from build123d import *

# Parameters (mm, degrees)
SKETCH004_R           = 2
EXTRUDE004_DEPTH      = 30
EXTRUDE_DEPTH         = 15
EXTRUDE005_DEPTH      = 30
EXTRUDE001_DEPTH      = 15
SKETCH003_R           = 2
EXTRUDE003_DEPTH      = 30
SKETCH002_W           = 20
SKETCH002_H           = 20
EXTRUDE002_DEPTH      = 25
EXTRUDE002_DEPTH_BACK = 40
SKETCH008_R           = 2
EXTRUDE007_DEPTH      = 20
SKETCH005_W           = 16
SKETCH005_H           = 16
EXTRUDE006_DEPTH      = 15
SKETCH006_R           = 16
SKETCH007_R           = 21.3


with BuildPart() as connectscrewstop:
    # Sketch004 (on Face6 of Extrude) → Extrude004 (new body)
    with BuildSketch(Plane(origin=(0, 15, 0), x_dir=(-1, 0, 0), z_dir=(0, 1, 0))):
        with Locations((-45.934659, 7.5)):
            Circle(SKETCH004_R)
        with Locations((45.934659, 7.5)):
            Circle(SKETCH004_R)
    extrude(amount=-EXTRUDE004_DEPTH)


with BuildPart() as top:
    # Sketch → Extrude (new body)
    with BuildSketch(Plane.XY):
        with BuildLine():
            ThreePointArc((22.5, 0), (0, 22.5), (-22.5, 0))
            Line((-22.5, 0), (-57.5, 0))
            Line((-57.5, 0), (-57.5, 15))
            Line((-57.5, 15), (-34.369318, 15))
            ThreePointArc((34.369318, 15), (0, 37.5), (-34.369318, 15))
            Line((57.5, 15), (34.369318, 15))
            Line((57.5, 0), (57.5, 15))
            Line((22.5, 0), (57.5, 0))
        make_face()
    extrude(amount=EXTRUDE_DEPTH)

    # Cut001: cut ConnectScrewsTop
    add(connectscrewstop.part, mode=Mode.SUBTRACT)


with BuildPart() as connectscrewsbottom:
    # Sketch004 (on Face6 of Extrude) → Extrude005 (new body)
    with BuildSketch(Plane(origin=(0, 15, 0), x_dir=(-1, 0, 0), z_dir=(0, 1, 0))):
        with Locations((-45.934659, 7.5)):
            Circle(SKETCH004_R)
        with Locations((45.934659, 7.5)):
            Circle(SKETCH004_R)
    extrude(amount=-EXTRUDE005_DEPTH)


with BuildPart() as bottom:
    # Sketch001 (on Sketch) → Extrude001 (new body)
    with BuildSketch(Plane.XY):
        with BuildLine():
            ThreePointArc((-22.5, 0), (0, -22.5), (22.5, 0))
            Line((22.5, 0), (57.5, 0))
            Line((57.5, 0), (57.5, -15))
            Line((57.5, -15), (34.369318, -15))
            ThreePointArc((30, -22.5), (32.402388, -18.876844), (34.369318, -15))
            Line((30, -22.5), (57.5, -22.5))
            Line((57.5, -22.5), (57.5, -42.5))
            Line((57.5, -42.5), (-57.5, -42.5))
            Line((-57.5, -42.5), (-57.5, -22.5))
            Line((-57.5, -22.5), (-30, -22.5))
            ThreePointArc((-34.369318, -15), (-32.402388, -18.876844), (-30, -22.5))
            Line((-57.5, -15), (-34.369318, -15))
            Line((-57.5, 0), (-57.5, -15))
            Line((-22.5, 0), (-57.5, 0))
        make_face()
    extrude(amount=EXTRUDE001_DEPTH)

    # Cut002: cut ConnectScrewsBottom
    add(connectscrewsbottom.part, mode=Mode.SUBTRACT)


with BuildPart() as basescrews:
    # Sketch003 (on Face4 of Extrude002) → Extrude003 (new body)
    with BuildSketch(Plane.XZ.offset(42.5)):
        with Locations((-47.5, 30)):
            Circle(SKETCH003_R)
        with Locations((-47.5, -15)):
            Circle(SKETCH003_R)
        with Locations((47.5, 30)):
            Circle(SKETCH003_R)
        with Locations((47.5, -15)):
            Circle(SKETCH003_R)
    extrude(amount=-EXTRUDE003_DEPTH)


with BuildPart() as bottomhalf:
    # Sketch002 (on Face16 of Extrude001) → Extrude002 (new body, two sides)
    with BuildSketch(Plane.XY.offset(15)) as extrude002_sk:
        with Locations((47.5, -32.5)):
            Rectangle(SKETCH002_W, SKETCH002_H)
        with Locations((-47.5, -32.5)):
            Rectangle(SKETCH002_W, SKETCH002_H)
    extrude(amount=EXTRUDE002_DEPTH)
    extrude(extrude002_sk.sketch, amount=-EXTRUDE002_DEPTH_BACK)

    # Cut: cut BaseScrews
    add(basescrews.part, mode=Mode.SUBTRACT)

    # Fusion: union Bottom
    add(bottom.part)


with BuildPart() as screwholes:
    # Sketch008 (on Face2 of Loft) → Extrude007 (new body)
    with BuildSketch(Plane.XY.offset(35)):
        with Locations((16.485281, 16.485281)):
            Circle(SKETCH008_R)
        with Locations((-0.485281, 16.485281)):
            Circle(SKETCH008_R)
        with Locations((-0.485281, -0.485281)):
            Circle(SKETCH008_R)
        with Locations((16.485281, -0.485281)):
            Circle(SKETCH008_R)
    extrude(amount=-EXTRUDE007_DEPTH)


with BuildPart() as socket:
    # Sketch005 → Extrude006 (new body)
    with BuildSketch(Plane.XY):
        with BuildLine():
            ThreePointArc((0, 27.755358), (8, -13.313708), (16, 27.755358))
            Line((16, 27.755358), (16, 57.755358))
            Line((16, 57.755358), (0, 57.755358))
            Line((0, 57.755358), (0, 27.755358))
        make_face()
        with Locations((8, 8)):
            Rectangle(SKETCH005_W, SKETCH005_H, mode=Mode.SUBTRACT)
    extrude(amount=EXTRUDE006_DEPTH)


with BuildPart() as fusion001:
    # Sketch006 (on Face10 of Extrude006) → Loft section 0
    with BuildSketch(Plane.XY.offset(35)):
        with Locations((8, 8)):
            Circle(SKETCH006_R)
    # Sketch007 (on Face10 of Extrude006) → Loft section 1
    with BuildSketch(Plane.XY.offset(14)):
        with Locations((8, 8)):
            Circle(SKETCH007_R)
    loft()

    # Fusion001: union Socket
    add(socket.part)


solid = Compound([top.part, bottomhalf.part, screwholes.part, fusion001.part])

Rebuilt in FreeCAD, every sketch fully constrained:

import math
import FreeCAD as App
import Part
import Sketcher

V = App.Vector

doc = App.newDocument("Part")
params = doc.addObject("Spreadsheet::Sheet", "Params")
for row, (alias, value) in enumerate([
    ("sketch1_diameter", "4 mm"),
    ("pad1_length", "30 mm"),
    ("sketch2_radius", "22.5 mm"),
    ("sketch2_radius2", "37.5 mm"),
    ("sketch2_width", "35 mm"),
    ("sketch2_height", "15 mm"),
    ("pad2_length", "15 mm"),
    ("sketch3_diameter", "4 mm"),
    ("pad3_length", "30 mm"),
    ("sketch4_radius", "22.5 mm"),
    ("sketch4_width", "35 mm"),
    ("sketch4_height", "15 mm"),
    ("sketch4_height2", "20 mm"),
    ("sketch4_width2", "27.5 mm"),
    ("pad4_length", "15 mm"),
    ("sketch5_diameter", "4 mm"),
    ("pad5_length", "30 mm"),
    ("sketch6_width", "20 mm"),
    ("pad6_length", "25 mm"),
    ("pad6_length2", "40 mm"),
    ("sketch7_diameter", "4 mm"),
    ("pad7_length", "20 mm"),
    ("sketch8_width", "16 mm"),
    ("sketch8_height", "30 mm"),
    ("pad8_length", "15 mm"),
    ("sketch9_diameter", "32 mm"),
    ("sketch10_diameter", "42.6 mm"),
], start=1):
    params.set(f"A{row}", alias)
    params.set(f"B{row}", "=" + value)
    params.setAlias(f"B{row}", alias)

body = doc.addObject("PartDesign::Body", "Body")
body.AllowCompound = True

# Sketch on XZ plane
sketch1 = doc.addObject("Sketcher::SketchObject", "Sketch")
body.addObject(sketch1)
sketch1.AttachmentSupport = (doc.XZ_Plane, [""])
sketch1.MapMode = "FlatFace"
sketch1.AttachmentOffset = App.Placement(V(0, 0, -15), App.Rotation())
sketch1.addGeometry([
    Part.Circle(V(45.934659, 7.5, 0), V(0, 0, 1), 2),
    Part.Circle(V(-45.934659, 7.5, 0), V(0, 0, 1), 2),
], False)
sketch1.addConstraint([
    Sketcher.Constraint("Equal", 0, 1),
    Sketcher.Constraint("Symmetric", 0, 3, 1, 3, -2),
    Sketcher.Constraint("Diameter", 0, 4.0),
    Sketcher.Constraint("DistanceY", -1, 1, 0, 3, 7.5),
    Sketcher.Constraint("DistanceX", -1, 1, 0, 3, 45.934659),
])
sketch1.setExpression("Constraints[2]", "Params.sketch1_diameter")
pad1 = doc.addObject("PartDesign::Pad", "Pad")
body.addObject(pad1)
pad1.Profile = sketch1
pad1.setExpression("Length", "Params.pad1_length")
body2 = doc.addObject("PartDesign::Body", "Body001")

# Sketch on XY plane
sketch2 = doc.addObject("Sketcher::SketchObject", "Sketch001")
body2.addObject(sketch2)
sketch2.AttachmentSupport = (doc.getObject("XY_Plane001"), [""])
sketch2.MapMode = "FlatFace"
sketch2.addGeometry([
    Part.ArcOfCircle(Part.Circle(V(0, 0, 0), V(0, 0, 1), 22.5), math.radians(0), math.radians(180)),  # 0
    Part.LineSegment(V(22.5, 0, 0), V(57.5, 0, 0)),  # 1
    Part.LineSegment(V(57.5, 0, 0), V(57.5, 15, 0)),  # 2
    Part.LineSegment(V(57.5, 15, 0), V(34.369318, 15, 0)),  # 3
    Part.ArcOfCircle(Part.Circle(V(0, 0, 0), V(0, 0, 1), 37.5), math.radians(23.578179), math.radians(156.421821)),  # 4
    Part.LineSegment(V(-34.369318, 15, 0), V(-57.5, 15, 0)),  # 5
    Part.LineSegment(V(-57.5, 15, 0), V(-57.5, 0, 0)),  # 6
    Part.LineSegment(V(-57.5, 0, 0), V(-22.5, 0, 0)),  # 7
], False)
sketch2.addConstraint([
    Sketcher.Constraint("Coincident", 0, 1, 1, 1),
    Sketcher.Constraint("Coincident", 1, 2, 2, 1),
    Sketcher.Constraint("Coincident", 2, 2, 3, 1),
    Sketcher.Constraint("Coincident", 3, 2, 4, 1),
    Sketcher.Constraint("Coincident", 4, 2, 5, 1),
    Sketcher.Constraint("Coincident", 5, 2, 6, 1),
    Sketcher.Constraint("Coincident", 6, 2, 7, 1),
    Sketcher.Constraint("Coincident", 7, 2, 0, 2),
    Sketcher.Constraint("Horizontal", 1),
    Sketcher.Constraint("Vertical", 2),
    Sketcher.Constraint("Horizontal", 3),
    Sketcher.Constraint("Horizontal", 5),
    Sketcher.Constraint("Vertical", 6),
    Sketcher.Constraint("Horizontal", 7),
    Sketcher.Constraint("Coincident", 0, 3, -1, 1),
    Sketcher.Constraint("Coincident", 4, 3, -1, 1),
    Sketcher.Constraint("Symmetric", 1, 2, 6, 2, -1, 1),
    Sketcher.Constraint("PointOnObject", 0, 1, -1),
    Sketcher.Constraint("Horizontal", 3, 2, 4, 2),
    Sketcher.Constraint("Radius", 0, 22.5),
    Sketcher.Constraint("Radius", 4, 37.5),
    Sketcher.Constraint("DistanceX", 1, 1, 1, 2, 35.0),
    Sketcher.Constraint("DistanceY", 2, 1, 2, 2, 15.0),
])
sketch2.setExpression("Constraints[19]", "Params.sketch2_radius")
sketch2.setExpression("Constraints[20]", "Params.sketch2_radius2")
sketch2.setExpression("Constraints[21]", "Params.sketch2_width")
sketch2.setExpression("Constraints[22]", "Params.sketch2_height")
pad2 = doc.addObject("PartDesign::Pad", "Pad001")
body2.addObject(pad2)
pad2.Profile = sketch2
pad2.setExpression("Length", "Params.pad2_length")
doc.recompute()

boolean = doc.addObject("PartDesign::Boolean", "Boolean")
body2.addObject(boolean)
boolean.Type = "Cut"
boolean.addObjects([body])
body3 = doc.addObject("PartDesign::Body", "Body002")
body3.AllowCompound = True

# Sketch on XZ plane
sketch3 = doc.addObject("Sketcher::SketchObject", "Sketch002")
body3.addObject(sketch3)
sketch3.AttachmentSupport = (doc.getObject("XZ_Plane002"), [""])
sketch3.MapMode = "FlatFace"
sketch3.AttachmentOffset = App.Placement(V(0, 0, -15), App.Rotation())
sketch3.addGeometry([
    Part.Circle(V(45.934659, 7.5, 0), V(0, 0, 1), 2),
    Part.Circle(V(-45.934659, 7.5, 0), V(0, 0, 1), 2),
], False)
sketch3.addConstraint([
    Sketcher.Constraint("Equal", 0, 1),
    Sketcher.Constraint("Symmetric", 0, 3, 1, 3, -2),
    Sketcher.Constraint("Diameter", 0, 4.0),
    Sketcher.Constraint("DistanceY", -1, 1, 0, 3, 7.5),
    Sketcher.Constraint("DistanceX", -1, 1, 0, 3, 45.934659),
])
sketch3.setExpression("Constraints[2]", "Params.sketch3_diameter")
pad3 = doc.addObject("PartDesign::Pad", "Pad002")
body3.addObject(pad3)
pad3.Profile = sketch3
pad3.setExpression("Length", "Params.pad3_length")
body4 = doc.addObject("PartDesign::Body", "Body003")

# Sketch on XY plane
sketch4 = doc.addObject("Sketcher::SketchObject", "Sketch003")
body4.addObject(sketch4)
sketch4.AttachmentSupport = (doc.getObject("XY_Plane003"), [""])
sketch4.MapMode = "FlatFace"
sketch4.addGeometry([
    Part.ArcOfCircle(Part.Circle(V(0, 0, 0), V(0, 0, 1), 22.5), math.radians(180), math.radians(360)),  # 0
    Part.LineSegment(V(-22.5, 0, 0), V(-57.5, 0, 0)),  # 1
    Part.LineSegment(V(-57.5, 0, 0), V(-57.5, -15, 0)),  # 2
    Part.LineSegment(V(-57.5, -15, 0), V(-34.369318, -15, 0)),  # 3
    Part.ArcOfCircle(Part.Circle(V(0.000038, 0.000023, 0), V(0, 0, 1), 37.500044), math.radians(-156.421812), math.radians(-143.130108)),  # 4
    Part.LineSegment(V(-30, -22.5, 0), V(-57.5, -22.5, 0)),  # 5
    Part.LineSegment(V(-57.5, -22.5, 0), V(-57.5, -42.5, 0)),  # 6
    Part.LineSegment(V(-57.5, -42.5, 0), V(57.5, -42.5, 0)),  # 7
    Part.LineSegment(V(57.5, -42.5, 0), V(57.5, -22.5, 0)),  # 8
    Part.LineSegment(V(57.5, -22.5, 0), V(30, -22.5, 0)),  # 9
    Part.ArcOfCircle(Part.Circle(V(-0.000038, 0.000023, 0), V(0, 0, 1), 37.500044), math.radians(-36.869892), math.radians(-23.578188)),  # 10
    Part.LineSegment(V(34.369318, -15, 0), V(57.5, -15, 0)),  # 11
    Part.LineSegment(V(57.5, -15, 0), V(57.5, 0, 0)),  # 12
    Part.LineSegment(V(57.5, 0, 0), V(22.5, 0, 0)),  # 13
], False)
sketch4.addConstraint([
    Sketcher.Constraint("Coincident", 0, 1, 1, 1),
    Sketcher.Constraint("Coincident", 1, 2, 2, 1),
    Sketcher.Constraint("Coincident", 2, 2, 3, 1),
    Sketcher.Constraint("Coincident", 3, 2, 4, 1),
    Sketcher.Constraint("Coincident", 4, 2, 5, 1),
    Sketcher.Constraint("Coincident", 5, 2, 6, 1),
    Sketcher.Constraint("Coincident", 6, 2, 7, 1),
    Sketcher.Constraint("Coincident", 7, 2, 8, 1),
    Sketcher.Constraint("Coincident", 8, 2, 9, 1),
    Sketcher.Constraint("Coincident", 9, 2, 10, 1),
    Sketcher.Constraint("Coincident", 10, 2, 11, 1),
    Sketcher.Constraint("Coincident", 11, 2, 12, 1),
    Sketcher.Constraint("Coincident", 12, 2, 13, 1),
    Sketcher.Constraint("Coincident", 13, 2, 0, 2),
    Sketcher.Constraint("Horizontal", 1),
    Sketcher.Constraint("Vertical", 2),
    Sketcher.Constraint("Horizontal", 3),
    Sketcher.Constraint("Horizontal", 5),
    Sketcher.Constraint("Vertical", 6),
    Sketcher.Constraint("Horizontal", 7),
    Sketcher.Constraint("Vertical", 8),
    Sketcher.Constraint("Horizontal", 9),
    Sketcher.Constraint("Horizontal", 11),
    Sketcher.Constraint("Vertical", 12),
    Sketcher.Constraint("Horizontal", 13),
    Sketcher.Constraint("Coincident", 0, 3, -1, 1),
    Sketcher.Constraint("Equal", 4, 10),
    Sketcher.Constraint("Symmetric", 1, 2, 12, 2, -1, 1),
    Sketcher.Constraint("Symmetric", 4, 3, 10, 3, -2),
    Sketcher.Constraint("Symmetric", 5, 2, 8, 2, -2),
    Sketcher.Constraint("PointOnObject", 0, 1, -1),
    Sketcher.Constraint("Horizontal", 3, 2, 10, 2),
    Sketcher.Constraint("Vertical", 2, 2, 5, 2),
    Sketcher.Constraint("Radius", 0, 22.5),
    Sketcher.Constraint("DistanceX", 1, 2, 1, 1, 35.0),
    Sketcher.Constraint("DistanceY", 2, 2, 2, 1, 15.0),
    Sketcher.Constraint("DistanceY", 6, 2, 6, 1, 20.0),
    Sketcher.Constraint("DistanceX", 5, 2, 5, 1, 27.5),
    Sketcher.Constraint("DistanceY", 4, 2, -1, 1, 22.5),
    Sketcher.Constraint("Radius", 4, 37.500044),
    Sketcher.Constraint("DistanceX", 3, 1, 3, 2, 23.130682),
])
sketch4.setExpression("Constraints[33]", "Params.sketch4_radius")
sketch4.setExpression("Constraints[34]", "Params.sketch4_width")
sketch4.setExpression("Constraints[35]", "Params.sketch4_height")
sketch4.setExpression("Constraints[36]", "Params.sketch4_height2")
sketch4.setExpression("Constraints[37]", "Params.sketch4_width2")
pad4 = doc.addObject("PartDesign::Pad", "Pad003")
body4.addObject(pad4)
pad4.Profile = sketch4
pad4.setExpression("Length", "Params.pad4_length")
doc.recompute()

boolean2 = doc.addObject("PartDesign::Boolean", "Boolean001")
body4.addObject(boolean2)
boolean2.Type = "Cut"
boolean2.addObjects([body3])
body5 = doc.addObject("PartDesign::Body", "Body004")
body5.AllowCompound = True

# Sketch on XZ plane
sketch5 = doc.addObject("Sketcher::SketchObject", "Sketch004")
body5.addObject(sketch5)
sketch5.AttachmentSupport = (doc.getObject("XZ_Plane004"), [""])
sketch5.MapMode = "FlatFace"
sketch5.AttachmentOffset = App.Placement(V(0, 0, 42.5), App.Rotation())
sketch5.addGeometry([
    Part.Circle(V(-47.5, 30, 0), V(0, 0, 1), 2),
    Part.Circle(V(-47.5, -15, 0), V(0, 0, 1), 2),
    Part.Circle(V(47.5, 30, 0), V(0, 0, 1), 2),
    Part.Circle(V(47.5, -15, 0), V(0, 0, 1), 2),
], False)
sketch5.addConstraint([
    Sketcher.Constraint("Equal", 0, 1),
    Sketcher.Constraint("Equal", 1, 2),
    Sketcher.Constraint("Equal", 2, 3),
    Sketcher.Constraint("Symmetric", 0, 3, 2, 3, -2),
    Sketcher.Constraint("Symmetric", 1, 3, 3, 3, -2),
    Sketcher.Constraint("Vertical", 0, 3, 1, 3),
    Sketcher.Constraint("Diameter", 0, 4.0),
    Sketcher.Constraint("DistanceY", -1, 1, 0, 3, 30.0),
    Sketcher.Constraint("DistanceY", 1, 3, -1, 1, 15.0),
    Sketcher.Constraint("DistanceX", 0, 3, 2, 3, 95.0),
])
sketch5.setExpression("Constraints[6]", "Params.sketch5_diameter")
pad5 = doc.addObject("PartDesign::Pad", "Pad004")
body5.addObject(pad5)
pad5.Profile = sketch5
pad5.setExpression("Length", "Params.pad5_length")
pad5.Reversed = True
body6 = doc.addObject("PartDesign::Body", "Body005")
body6.AllowCompound = True

# Sketch on XY plane
sketch6 = doc.addObject("Sketcher::SketchObject", "Sketch005")
body6.addObject(sketch6)
sketch6.AttachmentSupport = (doc.getObject("XY_Plane005"), [""])
sketch6.MapMode = "FlatFace"
sketch6.AttachmentOffset = App.Placement(V(0, 0, 15), App.Rotation())
sketch6.addGeometry([
    Part.LineSegment(V(37.5, -22.5, 0), V(37.5, -42.5, 0)),  # 0
    Part.LineSegment(V(37.5, -42.5, 0), V(57.5, -42.5, 0)),  # 1
    Part.LineSegment(V(57.5, -42.5, 0), V(57.5, -22.5, 0)),  # 2
    Part.LineSegment(V(57.5, -22.5, 0), V(37.5, -22.5, 0)),  # 3
    Part.LineSegment(V(-57.5, -22.5, 0), V(-57.5, -42.5, 0)),  # 4
    Part.LineSegment(V(-57.5, -42.5, 0), V(-37.5, -42.5, 0)),  # 5
    Part.LineSegment(V(-37.5, -42.5, 0), V(-37.5, -22.5, 0)),  # 6
    Part.LineSegment(V(-37.5, -22.5, 0), V(-57.5, -22.5, 0)),  # 7
], False)
sketch6.addConstraint([
    Sketcher.Constraint("Coincident", 0, 2, 1, 1),
    Sketcher.Constraint("Coincident", 1, 2, 2, 1),
    Sketcher.Constraint("Coincident", 2, 2, 3, 1),
    Sketcher.Constraint("Coincident", 3, 2, 0, 1),
    Sketcher.Constraint("Coincident", 4, 2, 5, 1),
    Sketcher.Constraint("Coincident", 5, 2, 6, 1),
    Sketcher.Constraint("Coincident", 6, 2, 7, 1),
    Sketcher.Constraint("Coincident", 7, 2, 4, 1),
    Sketcher.Constraint("Vertical", 0),
    Sketcher.Constraint("Horizontal", 1),
    Sketcher.Constraint("Vertical", 2),
    Sketcher.Constraint("Horizontal", 3),
    Sketcher.Constraint("Vertical", 4),
    Sketcher.Constraint("Horizontal", 5),
    Sketcher.Constraint("Vertical", 6),
    Sketcher.Constraint("Horizontal", 7),
    Sketcher.Constraint("Symmetric", 1, 2, 4, 2, -2),
    Sketcher.Constraint("Symmetric", 3, 2, 6, 2, -2),
    Sketcher.Constraint("Equal", 7, 0),
    Sketcher.Constraint("DistanceX", 1, 1, 1, 2, 20.0),
    Sketcher.Constraint("DistanceX", 4, 2, 0, 2, 95.0),
    Sketcher.Constraint("DistanceY", 0, 2, -1, 1, 42.5),
])
sketch6.setExpression("Constraints[19]", "Params.sketch6_width")
pad6 = doc.addObject("PartDesign::Pad", "Pad005")
body6.addObject(pad6)
pad6.Profile = sketch6
pad6.Type = "TwoLengths"
pad6.setExpression("Length", "Params.pad6_length")
pad6.setExpression("Length2", "Params.pad6_length2")
doc.recompute()

boolean3 = doc.addObject("PartDesign::Boolean", "Boolean002")
body6.addObject(boolean3)
boolean3.Type = "Cut"
boolean3.addObjects([body5])
doc.recompute()

boolean4 = doc.addObject("PartDesign::Boolean", "Boolean003")
body6.addObject(boolean4)
boolean4.Type = "Fuse"
boolean4.addObjects([body4])
body7 = doc.addObject("PartDesign::Body", "Body006")
body7.AllowCompound = True

# Sketch on XY plane
sketch7 = doc.addObject("Sketcher::SketchObject", "Sketch006")
body7.addObject(sketch7)
sketch7.AttachmentSupport = (doc.getObject("XY_Plane006"), [""])
sketch7.MapMode = "FlatFace"
sketch7.AttachmentOffset = App.Placement(V(0, 0, 35), App.Rotation())
sketch7.addGeometry([
    Part.Circle(V(16.485281, 16.485281, 0), V(0, 0, 1), 2),
    Part.Circle(V(-0.485281, 16.485281, 0), V(0, 0, 1), 2),
    Part.Circle(V(-0.485281, -0.485281, 0), V(0, 0, 1), 2),
    Part.Circle(V(16.485281, -0.485281, 0), V(0, 0, 1), 2),
], False)
sketch7.addConstraint([
    Sketcher.Constraint("Equal", 0, 1),
    Sketcher.Constraint("Equal", 1, 2),
    Sketcher.Constraint("Equal", 2, 3),
    Sketcher.Constraint("Horizontal", 0, 3, 1, 3),
    Sketcher.Constraint("Horizontal", 2, 3, 3, 3),
    Sketcher.Constraint("Vertical", 1, 3, 2, 3),
    Sketcher.Constraint("Vertical", 0, 3, 3, 3),
    Sketcher.Constraint("Diameter", 0, 4.0),
    Sketcher.Constraint("DistanceX", -1, 1, 0, 3, 16.485281),
    Sketcher.Constraint("DistanceY", -1, 1, 0, 3, 16.485281),
    Sketcher.Constraint("DistanceX", 1, 3, -1, 1, 0.485281),
    Sketcher.Constraint("DistanceY", 2, 3, -1, 1, 0.485281),
])
sketch7.setExpression("Constraints[7]", "Params.sketch7_diameter")
pad7 = doc.addObject("PartDesign::Pad", "Pad006")
body7.addObject(pad7)
pad7.Profile = sketch7
pad7.setExpression("Length", "Params.pad7_length")
pad7.Reversed = True
body8 = doc.addObject("PartDesign::Body", "Body007")

# Sketch on XY plane
sketch8 = doc.addObject("Sketcher::SketchObject", "Sketch007")
body8.addObject(sketch8)
sketch8.AttachmentSupport = (doc.getObject("XY_Plane007"), [""])
sketch8.MapMode = "FlatFace"
sketch8.addGeometry([
    Part.ArcOfCircle(Part.Circle(V(8, 8, 0), V(0, 0, 1), 21.313708), math.radians(112.045655), math.radians(427.954345)),  # 0
    Part.LineSegment(V(16, 27.755358, 0), V(16, 57.755358, 0)),  # 1
    Part.LineSegment(V(16, 57.755358, 0), V(0, 57.755358, 0)),  # 2
    Part.LineSegment(V(0, 57.755358, 0), V(0, 27.755358, 0)),  # 3
    Part.LineSegment(V(16, 0, 0), V(0, 0, 0)),  # 4
    Part.LineSegment(V(0, 0, 0), V(0, 16, 0)),  # 5
    Part.LineSegment(V(0, 16, 0), V(16, 16, 0)),  # 6
    Part.LineSegment(V(16, 16, 0), V(16, 0, 0)),  # 7
], False)
sketch8.addConstraint([
    Sketcher.Constraint("Coincident", 0, 2, 1, 1),
    Sketcher.Constraint("Coincident", 1, 2, 2, 1),
    Sketcher.Constraint("Coincident", 2, 2, 3, 1),
    Sketcher.Constraint("Coincident", 3, 2, 0, 1),
    Sketcher.Constraint("Coincident", 4, 2, 5, 1),
    Sketcher.Constraint("Coincident", 5, 2, 6, 1),
    Sketcher.Constraint("Coincident", 6, 2, 7, 1),
    Sketcher.Constraint("Coincident", 7, 2, 4, 1),
    Sketcher.Constraint("Vertical", 1),
    Sketcher.Constraint("Horizontal", 2),
    Sketcher.Constraint("Vertical", 3),
    Sketcher.Constraint("Horizontal", 4),
    Sketcher.Constraint("Vertical", 5),
    Sketcher.Constraint("Horizontal", 6),
    Sketcher.Constraint("Vertical", 7),
    Sketcher.Constraint("Coincident", 4, 2, -1, 1),
    Sketcher.Constraint("PointOnObject", 2, 2, -2),
    Sketcher.Constraint("Horizontal", 0, 2, 3, 2),
    Sketcher.Constraint("Vertical", 1, 2, 6, 2),
    Sketcher.Constraint("Equal", 6, 5),
    Sketcher.Constraint("DistanceX", 2, 2, 2, 1, 16.0),
    Sketcher.Constraint("DistanceY", 1, 1, 1, 2, 30.0),
    Sketcher.Constraint("DistanceY", -1, 1, 0, 3, 8.0),
    Sketcher.Constraint("Radius", 0, 21.313708),
])
sketch8.setExpression("Constraints[20]", "Params.sketch8_width")
sketch8.setExpression("Constraints[21]", "Params.sketch8_height")
pad8 = doc.addObject("PartDesign::Pad", "Pad007")
body8.addObject(pad8)
pad8.Profile = sketch8
pad8.setExpression("Length", "Params.pad8_length")
body9 = doc.addObject("PartDesign::Body", "Body008")

# Sketch on XY plane
sketch9 = doc.addObject("Sketcher::SketchObject", "Sketch008")
body9.addObject(sketch9)
sketch9.AttachmentSupport = (doc.getObject("XY_Plane008"), [""])
sketch9.MapMode = "FlatFace"
sketch9.AttachmentOffset = App.Placement(V(0, 0, 35), App.Rotation())
sketch9.addGeometry(Part.Circle(V(8, 8, 0), V(0, 0, 1), 16), False)
sketch9.addConstraint([
    Sketcher.Constraint("Diameter", 0, 32.0),
    Sketcher.Constraint("DistanceX", -1, 1, 0, 3, 8.0),
    Sketcher.Constraint("DistanceY", -1, 1, 0, 3, 8.0),
])
sketch9.setExpression("Constraints[0]", "Params.sketch9_diameter")

# Sketch on XY plane
sketch10 = doc.addObject("Sketcher::SketchObject", "Sketch009")
body9.addObject(sketch10)
sketch10.AttachmentSupport = (doc.getObject("XY_Plane008"), [""])
sketch10.MapMode = "FlatFace"
sketch10.AttachmentOffset = App.Placement(V(0, 0, 14), App.Rotation())
sketch10.addGeometry(Part.Circle(V(8, 8, 0), V(0, 0, 1), 21.3), False)
sketch10.addConstraint([
    Sketcher.Constraint("Diameter", 0, 42.6),
    Sketcher.Constraint("DistanceX", -1, 1, 0, 3, 8.0),
    Sketcher.Constraint("DistanceY", -1, 1, 0, 3, 8.0),
])
sketch10.setExpression("Constraints[0]", "Params.sketch10_diameter")

additiveloft = doc.addObject("PartDesign::AdditiveLoft", "AdditiveLoft")
body9.addObject(additiveloft)
additiveloft.Profile = sketch9
additiveloft.Sections = [sketch10]
doc.recompute()

boolean5 = doc.addObject("PartDesign::Boolean", "Boolean004")
body9.addObject(boolean5)
boolean5.Type = "Fuse"
boolean5.addObjects([body8])

doc.recompute()
